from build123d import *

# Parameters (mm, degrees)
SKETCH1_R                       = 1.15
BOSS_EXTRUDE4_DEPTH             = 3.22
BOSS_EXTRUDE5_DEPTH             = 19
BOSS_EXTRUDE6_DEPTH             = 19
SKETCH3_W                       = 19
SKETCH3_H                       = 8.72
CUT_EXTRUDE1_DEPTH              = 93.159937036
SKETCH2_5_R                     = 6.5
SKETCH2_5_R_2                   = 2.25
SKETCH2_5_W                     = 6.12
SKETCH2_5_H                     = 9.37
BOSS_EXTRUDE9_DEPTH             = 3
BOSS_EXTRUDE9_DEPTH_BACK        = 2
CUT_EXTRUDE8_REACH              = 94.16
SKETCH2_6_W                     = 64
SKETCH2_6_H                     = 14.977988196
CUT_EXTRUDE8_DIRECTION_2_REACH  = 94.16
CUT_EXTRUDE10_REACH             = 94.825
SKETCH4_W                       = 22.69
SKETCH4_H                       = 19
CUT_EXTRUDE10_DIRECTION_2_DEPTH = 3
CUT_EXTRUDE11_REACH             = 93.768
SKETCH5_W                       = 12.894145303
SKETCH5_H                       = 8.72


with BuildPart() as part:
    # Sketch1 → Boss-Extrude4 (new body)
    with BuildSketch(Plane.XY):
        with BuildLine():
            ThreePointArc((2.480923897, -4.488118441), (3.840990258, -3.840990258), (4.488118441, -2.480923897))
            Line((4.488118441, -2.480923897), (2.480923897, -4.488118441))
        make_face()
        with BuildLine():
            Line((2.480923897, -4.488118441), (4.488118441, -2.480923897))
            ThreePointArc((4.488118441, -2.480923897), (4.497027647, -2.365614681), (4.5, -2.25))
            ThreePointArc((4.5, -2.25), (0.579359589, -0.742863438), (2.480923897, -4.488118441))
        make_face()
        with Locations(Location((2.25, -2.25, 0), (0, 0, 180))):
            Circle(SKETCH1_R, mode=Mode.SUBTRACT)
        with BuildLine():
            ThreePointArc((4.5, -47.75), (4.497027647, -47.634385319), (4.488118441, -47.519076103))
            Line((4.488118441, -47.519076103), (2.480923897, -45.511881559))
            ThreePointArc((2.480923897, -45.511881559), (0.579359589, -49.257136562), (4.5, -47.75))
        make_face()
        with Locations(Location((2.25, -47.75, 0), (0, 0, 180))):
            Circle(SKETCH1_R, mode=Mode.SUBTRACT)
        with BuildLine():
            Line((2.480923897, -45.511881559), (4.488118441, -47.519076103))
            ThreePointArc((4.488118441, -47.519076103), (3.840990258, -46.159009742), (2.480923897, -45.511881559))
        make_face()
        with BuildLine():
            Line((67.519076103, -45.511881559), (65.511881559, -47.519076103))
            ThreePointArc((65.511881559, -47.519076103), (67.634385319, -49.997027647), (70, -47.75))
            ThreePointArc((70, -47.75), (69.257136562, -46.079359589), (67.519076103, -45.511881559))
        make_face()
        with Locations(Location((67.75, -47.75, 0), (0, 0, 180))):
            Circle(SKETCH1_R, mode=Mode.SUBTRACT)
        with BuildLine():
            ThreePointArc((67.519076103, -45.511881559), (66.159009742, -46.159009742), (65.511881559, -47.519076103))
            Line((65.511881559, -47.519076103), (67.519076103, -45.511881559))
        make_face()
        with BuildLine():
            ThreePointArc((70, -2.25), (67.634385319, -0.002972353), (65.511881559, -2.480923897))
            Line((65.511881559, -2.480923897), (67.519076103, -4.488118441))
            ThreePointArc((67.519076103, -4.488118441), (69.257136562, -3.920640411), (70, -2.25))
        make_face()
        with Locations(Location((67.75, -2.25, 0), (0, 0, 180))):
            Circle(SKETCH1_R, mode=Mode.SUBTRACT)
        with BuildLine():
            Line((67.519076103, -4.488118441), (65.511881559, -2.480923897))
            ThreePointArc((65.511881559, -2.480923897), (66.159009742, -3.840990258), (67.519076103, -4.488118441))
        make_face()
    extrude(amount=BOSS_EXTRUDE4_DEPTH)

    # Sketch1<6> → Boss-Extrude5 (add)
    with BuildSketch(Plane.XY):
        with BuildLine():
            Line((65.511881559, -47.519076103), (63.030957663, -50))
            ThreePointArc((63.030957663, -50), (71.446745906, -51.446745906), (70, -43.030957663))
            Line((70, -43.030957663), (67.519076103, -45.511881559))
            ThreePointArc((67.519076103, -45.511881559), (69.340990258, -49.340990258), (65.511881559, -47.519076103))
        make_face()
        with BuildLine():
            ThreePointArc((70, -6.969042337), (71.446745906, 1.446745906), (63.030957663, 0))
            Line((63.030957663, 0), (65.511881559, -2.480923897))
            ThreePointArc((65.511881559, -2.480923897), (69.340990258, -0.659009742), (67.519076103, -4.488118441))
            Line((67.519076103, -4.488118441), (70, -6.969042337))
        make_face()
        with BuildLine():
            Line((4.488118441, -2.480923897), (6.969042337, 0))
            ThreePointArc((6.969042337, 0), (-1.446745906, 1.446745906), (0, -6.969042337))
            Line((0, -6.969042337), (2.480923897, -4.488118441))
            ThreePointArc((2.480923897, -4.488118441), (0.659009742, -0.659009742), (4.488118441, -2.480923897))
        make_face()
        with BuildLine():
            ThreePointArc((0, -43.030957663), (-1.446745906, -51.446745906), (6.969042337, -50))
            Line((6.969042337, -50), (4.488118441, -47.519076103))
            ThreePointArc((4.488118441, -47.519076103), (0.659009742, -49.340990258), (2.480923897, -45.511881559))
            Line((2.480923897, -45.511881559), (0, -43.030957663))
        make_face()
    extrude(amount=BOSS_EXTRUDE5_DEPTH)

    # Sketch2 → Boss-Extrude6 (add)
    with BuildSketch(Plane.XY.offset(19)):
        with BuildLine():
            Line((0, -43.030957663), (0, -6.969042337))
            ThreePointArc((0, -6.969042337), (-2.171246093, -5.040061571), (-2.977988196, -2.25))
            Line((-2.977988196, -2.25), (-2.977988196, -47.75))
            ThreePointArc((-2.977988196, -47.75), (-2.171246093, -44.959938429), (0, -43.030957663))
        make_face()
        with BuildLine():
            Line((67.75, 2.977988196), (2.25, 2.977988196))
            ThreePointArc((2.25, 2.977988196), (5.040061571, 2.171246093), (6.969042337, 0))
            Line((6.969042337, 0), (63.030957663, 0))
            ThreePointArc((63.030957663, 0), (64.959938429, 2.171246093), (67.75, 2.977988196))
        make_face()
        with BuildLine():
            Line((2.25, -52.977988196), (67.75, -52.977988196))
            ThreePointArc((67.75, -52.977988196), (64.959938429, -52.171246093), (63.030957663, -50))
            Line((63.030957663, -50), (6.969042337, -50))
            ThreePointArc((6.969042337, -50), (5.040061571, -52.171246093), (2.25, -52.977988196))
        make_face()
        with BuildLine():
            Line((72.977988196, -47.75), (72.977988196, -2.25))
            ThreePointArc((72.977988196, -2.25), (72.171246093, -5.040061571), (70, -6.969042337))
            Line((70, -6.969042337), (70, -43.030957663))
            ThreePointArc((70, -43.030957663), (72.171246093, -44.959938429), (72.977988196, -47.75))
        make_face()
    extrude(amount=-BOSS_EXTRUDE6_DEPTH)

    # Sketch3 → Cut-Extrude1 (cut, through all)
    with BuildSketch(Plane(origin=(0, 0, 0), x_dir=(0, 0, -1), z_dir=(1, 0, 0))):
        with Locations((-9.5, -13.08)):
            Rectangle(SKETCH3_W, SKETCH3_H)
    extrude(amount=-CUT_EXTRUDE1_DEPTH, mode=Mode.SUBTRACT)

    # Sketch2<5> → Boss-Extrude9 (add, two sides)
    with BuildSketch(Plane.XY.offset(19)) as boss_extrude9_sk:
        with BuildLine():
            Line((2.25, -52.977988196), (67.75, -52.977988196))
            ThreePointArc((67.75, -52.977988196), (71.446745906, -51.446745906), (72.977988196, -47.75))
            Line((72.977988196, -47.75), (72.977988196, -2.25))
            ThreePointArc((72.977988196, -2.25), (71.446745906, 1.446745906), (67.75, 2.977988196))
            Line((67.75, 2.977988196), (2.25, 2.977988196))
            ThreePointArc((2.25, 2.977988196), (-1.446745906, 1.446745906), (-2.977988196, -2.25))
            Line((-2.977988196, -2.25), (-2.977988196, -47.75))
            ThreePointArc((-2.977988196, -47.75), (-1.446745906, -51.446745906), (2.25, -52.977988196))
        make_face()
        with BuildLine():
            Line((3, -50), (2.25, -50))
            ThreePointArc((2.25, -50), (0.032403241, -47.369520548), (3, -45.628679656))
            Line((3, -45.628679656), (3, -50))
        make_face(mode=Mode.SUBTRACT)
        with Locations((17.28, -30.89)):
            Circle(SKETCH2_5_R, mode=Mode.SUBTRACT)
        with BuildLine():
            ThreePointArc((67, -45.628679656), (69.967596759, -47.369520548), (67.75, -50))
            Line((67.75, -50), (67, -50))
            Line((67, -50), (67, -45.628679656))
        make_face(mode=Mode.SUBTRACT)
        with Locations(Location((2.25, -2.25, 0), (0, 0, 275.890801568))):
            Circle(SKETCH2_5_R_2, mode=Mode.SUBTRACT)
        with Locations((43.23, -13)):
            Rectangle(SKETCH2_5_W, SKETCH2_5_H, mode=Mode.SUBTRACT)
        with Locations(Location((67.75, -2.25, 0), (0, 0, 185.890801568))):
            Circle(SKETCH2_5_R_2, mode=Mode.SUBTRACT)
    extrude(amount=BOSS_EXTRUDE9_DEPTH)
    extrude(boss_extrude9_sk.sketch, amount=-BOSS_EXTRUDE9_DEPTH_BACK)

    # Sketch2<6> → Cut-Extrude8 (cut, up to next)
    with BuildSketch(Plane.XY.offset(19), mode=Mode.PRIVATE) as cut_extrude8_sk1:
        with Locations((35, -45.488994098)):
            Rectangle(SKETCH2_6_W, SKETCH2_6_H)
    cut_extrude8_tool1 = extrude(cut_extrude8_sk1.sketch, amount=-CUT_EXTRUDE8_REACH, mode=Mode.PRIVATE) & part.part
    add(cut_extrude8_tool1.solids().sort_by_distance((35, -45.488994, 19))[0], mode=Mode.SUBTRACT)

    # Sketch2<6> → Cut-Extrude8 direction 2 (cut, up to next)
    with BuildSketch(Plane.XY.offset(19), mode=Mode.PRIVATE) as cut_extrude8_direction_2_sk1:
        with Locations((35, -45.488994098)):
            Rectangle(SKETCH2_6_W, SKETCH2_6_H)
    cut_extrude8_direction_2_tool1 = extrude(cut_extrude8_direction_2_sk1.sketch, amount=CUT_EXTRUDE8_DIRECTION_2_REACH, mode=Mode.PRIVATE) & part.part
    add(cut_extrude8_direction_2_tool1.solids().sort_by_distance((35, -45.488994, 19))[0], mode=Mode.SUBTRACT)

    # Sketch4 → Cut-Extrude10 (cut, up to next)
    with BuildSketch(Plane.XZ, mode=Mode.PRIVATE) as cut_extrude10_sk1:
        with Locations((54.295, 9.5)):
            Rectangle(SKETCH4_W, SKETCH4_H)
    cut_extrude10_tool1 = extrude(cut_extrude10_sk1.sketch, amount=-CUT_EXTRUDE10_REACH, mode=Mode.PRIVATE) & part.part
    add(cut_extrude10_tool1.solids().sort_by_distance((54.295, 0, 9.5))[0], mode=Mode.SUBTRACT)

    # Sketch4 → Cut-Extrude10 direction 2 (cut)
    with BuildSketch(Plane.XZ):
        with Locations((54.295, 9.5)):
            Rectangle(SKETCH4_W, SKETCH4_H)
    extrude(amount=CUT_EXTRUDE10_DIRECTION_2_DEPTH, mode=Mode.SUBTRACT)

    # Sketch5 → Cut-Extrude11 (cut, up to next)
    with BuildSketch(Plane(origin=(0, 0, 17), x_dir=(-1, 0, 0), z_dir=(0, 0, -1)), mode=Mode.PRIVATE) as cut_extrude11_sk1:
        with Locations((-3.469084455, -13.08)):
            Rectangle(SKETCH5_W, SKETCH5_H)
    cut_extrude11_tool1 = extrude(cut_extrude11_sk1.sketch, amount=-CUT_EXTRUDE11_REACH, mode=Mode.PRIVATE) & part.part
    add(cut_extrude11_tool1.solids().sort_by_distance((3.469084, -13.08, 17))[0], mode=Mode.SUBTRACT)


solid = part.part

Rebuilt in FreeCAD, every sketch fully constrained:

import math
import FreeCAD as App
import Part
import Sketcher
from FreeCAD import Vector
Q = App.Units.Quantity

doc = App.newDocument("Part")
params = doc.addObject("Spreadsheet::Sheet", "Params")
for row, (alias, value) in enumerate([
    ("sketch1_diameter", "2.3 mm"),
    ("sketch1_radius", "2.25 mm"),
    ("pad1_length", "3.22 mm"),
    ("sketch2_radius", "2.25 mm"),
    ("pad2_length", "19 mm"),
    ("sketch3_width", "65.5 mm"),
    ("sketch3_height", "45.5 mm"),
    ("pad3_length", "19 mm"),
    ("sketch4_height", "19 mm"),
    ("sketch4_width", "8.72 mm"),
    ("sketch5_diameter", "13 mm"),
    ("sketch5_diameter2", "4.5 mm"),
    ("sketch5_width", "65.5 mm"),
    ("sketch5_height", "45.5 mm"),
    ("sketch5_width2", "6.12 mm"),
    ("pad4_length", "3 mm"),
    ("pad4_length2", "2 mm"),
    ("sketch6_width", "64 mm"),
    ("pocket2_length", "19 mm"),
    ("sketch7_width", "64 mm"),
    ("sketch8_height", "19 mm"),
    ("sketch8_width", "22.69 mm"),
    ("sketch9_height", "19 mm"),
    ("sketch9_width", "22.69 mm"),
    ("pocket5_length", "3 mm"),
    ("sketch10_height", "8.72 mm"),
], start=1):
    params.set(f"A{row}", alias)
    params.set(f"B{row}", "=" + value)
    params.setAlias(f"B{row}", alias)

body = doc.addObject("PartDesign::Body", "Body")
body.AllowCompound = True

# Sketch on XY plane
sketch1 = body.newObject("Sketcher::SketchObject", "Sketch")
sketch1.AttachmentSupport = (doc.getObject("XY_Plane"), [""])
sketch1.MapMode = "FlatFace"
sketch1.addGeometry(Part.ArcOfCircle(Part.Circle(Vector(2.25, -2.25, 0), Vector(0, 0, 1), 2.25), math.radians(-84.109198), math.radians(-5.890802)), False)
sketch1.addGeometry(Part.ArcOfCircle(Part.Circle(Vector(2.25, -2.25, 0), Vector(0, 0, 1), 2.25), math.radians(-5.890801), math.radians(0)), False)
sketch1.addGeometry(Part.ArcOfCircle(Part.Circle(Vector(2.25, -2.25, 0), Vector(0, 0, 1), 2.25), math.radians(0), math.radians(275.890802)), False)
sketch1.addGeometry(Part.Circle(Vector(2.25, -2.25, 0), Vector(0, 0, 1), 1.15), False)
sketch1.addGeometry(Part.ArcOfCircle(Part.Circle(Vector(2.25, -47.75, 0), Vector(0, 0, 1), 2.25), math.radians(0), math.radians(5.890801)), False)
sketch1.addGeometry(Part.ArcOfCircle(Part.Circle(Vector(2.25, -47.75, 0), Vector(0, 0, 1), 2.25), math.radians(5.890802), math.radians(84.109198)), False)
sketch1.addGeometry(Part.ArcOfCircle(Part.Circle(Vector(2.25, -47.75, 0), Vector(0, 0, 1), 2.25), math.radians(84.109198), math.radians(360)), False)
sketch1.addGeometry(Part.Circle(Vector(2.25, -47.75, 0), Vector(0, 0, 1), 1.15), False)
sketch1.addGeometry(Part.ArcOfCircle(Part.Circle(Vector(67.75, -47.75, 0), Vector(0, 0, 1), 2.25), math.radians(0), math.radians(95.890802)), False)
sketch1.addGeometry(Part.ArcOfCircle(Part.Circle(Vector(67.75, -47.75, 0), Vector(0, 0, 1), 2.25), math.radians(95.890802), math.radians(174.109198)), False)
sketch1.addGeometry(Part.ArcOfCircle(Part.Circle(Vector(67.75, -47.75, 0), Vector(0, 0, 1), 2.25), math.radians(174.109198), math.radians(360)), False)
sketch1.addGeometry(Part.Circle(Vector(67.75, -47.75, 0), Vector(0, 0, 1), 1.15), False)
sketch1.addGeometry(Part.ArcOfCircle(Part.Circle(Vector(67.75, -2.25, 0), Vector(0, 0, 1), 2.25), math.radians(0), math.radians(185.890802)), False)
sketch1.addGeometry(Part.ArcOfCircle(Part.Circle(Vector(67.75, -2.25, 0), Vector(0, 0, 1), 2.25), math.radians(-174.109198), math.radians(-95.890802)), False)
sketch1.addGeometry(Part.ArcOfCircle(Part.Circle(Vector(67.75, -2.25, 0), Vector(0, 0, 1), 2.25), math.radians(-95.890802), math.radians(0)), False)
sketch1.addGeometry(Part.Circle(Vector(67.75, -2.25, 0), Vector(0, 0, 1), 1.15), False)
sketch1.addConstraint(Sketcher.Constraint("Tangent", 0, 2, 1, 1))
sketch1.addConstraint(Sketcher.Constraint("Tangent", 1, 2, 2, 1))
sketch1.addConstraint(Sketcher.Constraint("Tangent", 2, 2, 0, 1))
sketch1.addConstraint(Sketcher.Constraint("Tangent", 4, 2, 5, 1))
sketch1.addConstraint(Sketcher.Constraint("Tangent", 5, 2, 6, 1))
sketch1.addConstraint(Sketcher.Constraint("Tangent", 6, 2, 4, 1))
sketch1.addConstraint(Sketcher.Constraint("Tangent", 8, 2, 9, 1))
sketch1.addConstraint(Sketcher.Constraint("Tangent", 9, 2, 10, 1))
sketch1.addConstraint(Sketcher.Constraint("Tangent", 10, 2, 8, 1))
sketch1.addConstraint(Sketcher.Constraint("Tangent", 12, 2, 13, 1))
sketch1.addConstraint(Sketcher.Constraint("Tangent", 13, 2, 14, 1))
sketch1.addConstraint(Sketcher.Constraint("Tangent", 14, 2, 12, 1))
sketch1.addConstraint(Sketcher.Constraint("Coincident", 3, 3, 0, 3))
sketch1.addConstraint(Sketcher.Constraint("Coincident", 7, 3, 4, 3))
sketch1.addConstraint(Sketcher.Constraint("Coincident", 11, 3, 8, 3))
sketch1.addConstraint(Sketcher.Constraint("Coincident", 15, 3, 12, 3))
sketch1.addConstraint(Sketcher.Constraint("Equal", 2, 4))
sketch1.addConstraint(Sketcher.Constraint("Equal", 3, 7))
sketch1.addConstraint(Sketcher.Constraint("Equal", 6, 8))
sketch1.addConstraint(Sketcher.Constraint("Equal", 7, 11))
sketch1.addConstraint(Sketcher.Constraint("Equal", 10, 12))
sketch1.addConstraint(Sketcher.Constraint("Equal", 11, 15))
sketch1.addConstraint(Sketcher.Constraint("Horizontal", 7, 3, 8, 3))
sketch1.addConstraint(Sketcher.Constraint("Horizontal", 3, 3, 12, 3))
sketch1.addConstraint(Sketcher.Constraint("Horizontal", 15, 3, 1, 2))
sketch1.addConstraint(Sketcher.Constraint("Horizontal", 11, 3, 6, 2))
sketch1.addConstraint(Sketcher.Constraint("Horizontal", 5, 2, 8, 2))
sketch1.addConstraint(Sketcher.Constraint("Horizontal", 4, 2, 9, 2))
sketch1.addConstraint(Sketcher.Constraint("Horizontal", 6, 2, 10, 2))
sketch1.addConstraint(Sketcher.Constraint("Horizontal", 0, 2, 12, 2))
sketch1.addConstraint(Sketcher.Constraint("Horizontal", 2, 2, 13, 2))
sketch1.addConstraint(Sketcher.Constraint("Horizontal", 1, 2, 14, 2))
sketch1.addConstraint(Sketcher.Constraint("Vertical", 3, 3, 4, 3))
sketch1.addConstraint(Sketcher.Constraint("Vertical", 11, 3, 12, 3))
sketch1.addConstraint(Sketcher.Constraint("Vertical", 0, 2, 4, 2))
sketch1.addConstraint(Sketcher.Constraint("Vertical", 2, 2, 5, 2))
sketch1.addConstraint(Sketcher.Constraint("Diameter", 3, Q("2.3 mm")))
sketch1.addConstraint(Sketcher.Constraint("Radius", 0, Q("2.25 mm")))
sketch1.addConstraint(Sketcher.Constraint("DistanceX", -1, 1, 10, 2, Q("70 mm")))
sketch1.addConstraint(Sketcher.Constraint("DistanceX", -1, 1, 1, 2, Q("4.5 mm")))
sketch1.addConstraint(Sketcher.Constraint("DistanceY", 4, 3, 1, 3, Q("45.5 mm")))
sketch1.addConstraint(Sketcher.Constraint("DistanceY", 0, 3, -1, 1, Q("2.25 mm")))
sketch1.addConstraint(Sketcher.Constraint("DistanceX", -1, 1, 0, 2, Q("4.488118 mm")))
sketch1.addConstraint(Sketcher.Constraint("DistanceY", 2, 2, -1, 1, Q("4.488118 mm")))
sketch1.setExpression("Constraints[36]", "Params.sketch1_diameter")
sketch1.setExpression("Constraints[37]", "Params.sketch1_radius")
pad1 = body.newObject("PartDesign::Pad", "Pad")
pad1.Profile = sketch1
pad1.setExpression("Length", "Params.pad1_length")

# Sketch on XY plane
sketch2 = body.newObject("Sketcher::SketchObject", "Sketch001")
sketch2.AttachmentSupport = (doc.getObject("XY_Plane"), [""])
sketch2.MapMode = "FlatFace"
sketch2.addGeometry(Part.LineSegment(Vector(65.511882, -47.519076, 0), Vector(63.030958, -50, 0)), False)
sketch2.addGeometry(Part.ArcOfCircle(Part.Circle(Vector(67.75, -47.75, 0), Vector(0, 0, 1), 5.227988), math.radians(-154.508583), math.radians(64.508583)), False)
sketch2.addGeometry(Part.LineSegment(Vector(70, -43.030958, 0), Vector(67.519076, -45.511882, 0)), False)
sketch2.addGeometry(Part.ArcOfCircle(Part.Circle(Vector(67.75, -47.75, 0), Vector(0, 0, 1), 2.25), math.radians(174.109198), math.radians(455.890802)), False)
sketch2.addGeometry(Part.ArcOfCircle(Part.Circle(Vector(67.75, -2.25, 0), Vector(0, 0, 1), 5.227988), math.radians(-64.508583), math.radians(154.508583)), False)
sketch2.addGeometry(Part.LineSegment(Vector(63.030958, 0, 0), Vector(65.511882, -2.480924, 0)), False)
sketch2.addGeometry(Part.ArcOfCircle(Part.Circle(Vector(67.75, -2.25, 0), Vector(0, 0, 1), 2.25), math.radians(-95.890802), math.radians(185.890802)), False)
sketch2.addGeometry(Part.LineSegment(Vector(67.519076, -4.488118, 0), Vector(70, -6.969042, 0)), False)
sketch2.addGeometry(Part.LineSegment(Vector(4.488118, -2.480924, 0), Vector(6.969042, 0, 0)), False)
sketch2.addGeometry(Part.ArcOfCircle(Part.Circle(Vector(2.25, -2.25, 0), Vector(0, 0, 1), 5.227988), math.radians(25.491417), math.radians(244.508583)), False)
sketch2.addGeometry(Part.LineSegment(Vector(0, -6.969042, 0), Vector(2.480924, -4.488118, 0)), False)
sketch2.addGeometry(Part.ArcOfCircle(Part.Circle(Vector(2.25, -2.25, 0), Vector(0, 0, 1), 2.25), math.radians(-5.890802), math.radians(275.890802)), False)
sketch2.addGeometry(Part.ArcOfCircle(Part.Circle(Vector(2.25, -47.75, 0), Vector(0, 0, 1), 5.227988), math.radians(115.491417), math.radians(334.508583)), False)
sketch2.addGeometry(Part.LineSegment(Vector(6.969042, -50, 0), Vector(4.488118, -47.519076, 0)), False)
sketch2.addGeometry(Part.ArcOfCircle(Part.Circle(Vector(2.25, -47.75, 0), Vector(0, 0, 1), 2.25), math.radians(84.109198), math.radians(365.890802)), False)
sketch2.addGeometry(Part.LineSegment(Vector(2.480924, -45.511882, 0), Vector(0, -43.030958, 0)), False)
sketch2.addConstraint(Sketcher.Constraint("Coincident", 0, 2, 1, 1))
sketch2.addConstraint(Sketcher.Constraint("Coincident", 1, 2, 2, 1))
sketch2.addConstraint(Sketcher.Constraint("Coincident", 2, 2, 3, 2))
sketch2.addConstraint(Sketcher.Constraint("Coincident", 3, 1, 0, 1))
sketch2.addConstraint(Sketcher.Constraint("Coincident", 4, 2, 5, 1))
sketch2.addConstraint(Sketcher.Constraint("Coincident", 5, 2, 6, 2))
sketch2.addConstraint(Sketcher.Constraint("Coincident", 6, 1, 7, 1))
sketch2.addConstraint(Sketcher.Constraint("Coincident", 7, 2, 4, 1))
sketch2.addConstraint(Sketcher.Constraint("Coincident", 8, 2, 9, 1))
sketch2.addConstraint(Sketcher.Constraint("Coincident", 9, 2, 10, 1))
sketch2.addConstraint(Sketcher.Constraint("Coincident", 10, 2, 11, 2))
sketch2.addConstraint(Sketcher.Constraint("Coincident", 11, 1, 8, 1))
sketch2.addConstraint(Sketcher.Constraint("Coincident", 12, 2, 13, 1))
sketch2.addConstraint(Sketcher.Constraint("Coincident", 13, 2, 14, 2))
sketch2.addConstraint(Sketcher.Constraint("Coincident", 14, 1, 15, 1))
sketch2.addConstraint(Sketcher.Constraint("Coincident", 15, 2, 12, 1))
sketch2.addConstraint(Sketcher.Constraint("Coincident", 3, 3, 1, 3))
sketch2.addConstraint(Sketcher.Constraint("Coincident", 6, 3, 4, 3))
sketch2.addConstraint(Sketcher.Constraint("Coincident", 11, 3, 9, 3))
sketch2.addConstraint(Sketcher.Constraint("Coincident", 14, 3, 12, 3))
sketch2.addConstraint(Sketcher.Constraint("Equal", 1, 4))
sketch2.addConstraint(Sketcher.Constraint("Equal", 3, 6))
sketch2.addConstraint(Sketcher.Constraint("Equal", 4, 9))
sketch2.addConstraint(Sketcher.Constraint("Equal", 6, 11))
sketch2.addConstraint(Sketcher.Constraint("Equal", 9, 12))
sketch2.addConstraint(Sketcher.Constraint("Equal", 11, 14))
sketch2.addConstraint(Sketcher.Constraint("PointOnObject", 4, 2, -1))
sketch2.addConstraint(Sketcher.Constraint("PointOnObject", 8, 2, -1))
sketch2.addConstraint(Sketcher.Constraint("PointOnObject", 9, 2, -2))
sketch2.addConstraint(Sketcher.Constraint("PointOnObject", 15, 2, -2))
sketch2.addConstraint(Sketcher.Constraint("Parallel", 0, 2))
sketch2.addConstraint(Sketcher.Constraint("Perpendicular", 2, 5))
sketch2.addConstraint(Sketcher.Constraint("Parallel", 5, 7))
sketch2.addConstraint(Sketcher.Constraint("Perpendicular", 7, 8))
sketch2.addConstraint(Sketcher.Constraint("Parallel", 8, 10))
sketch2.addConstraint(Sketcher.Constraint("Perpendicular", 10, 13))
sketch2.addConstraint(Sketcher.Constraint("Parallel", 13, 15))
sketch2.addConstraint(Sketcher.Constraint("Horizontal", 6, 3, 9, 3))
sketch2.addConstraint(Sketcher.Constraint("Horizontal", 3, 3, 12, 3))
sketch2.addConstraint(Sketcher.Constraint("Horizontal", 7, 2, 9, 2))
sketch2.addConstraint(Sketcher.Constraint("Horizontal", 6, 1, 10, 2))
sketch2.addConstraint(Sketcher.Constraint("Horizontal", 0, 2, 12, 2))
sketch2.addConstraint(Sketcher.Constraint("Horizontal", 2, 2, 14, 1))
sketch2.addConstraint(Sketcher.Constraint("Vertical", 3, 3, 4, 3))
sketch2.addConstraint(Sketcher.Constraint("Vertical", 11, 3, 12, 3))
sketch2.addConstraint(Sketcher.Constraint("Vertical", 0, 2, 4, 2))
sketch2.addConstraint(Sketcher.Constraint("Equal", 0, 2))
sketch2.addConstraint(Sketcher.Constraint("Radius", 3, Q("2.25 mm")))
sketch2.addConstraint(Sketcher.Constraint("DistanceY", 0, 2, -1, 1, Q("50 mm")))
sketch2.addConstraint(Sketcher.Constraint("DistanceX", -1, 1, 1, 2, Q("70 mm")))
sketch2.addConstraint(Sketcher.Constraint("DistanceY", 1, 3, 4, 3, Q("45.5 mm")))
sketch2.addConstraint(Sketcher.Constraint("Radius", 1, Q("5.227988 mm")))
sketch2.setExpression("Constraints[47]", "Params.sketch2_radius")
pad2 = body.newObject("PartDesign::Pad", "Pad001")
pad2.Profile = sketch2
pad2.setExpression("Length", "Params.pad2_length")

# Sketch on XY plane
sketch3 = body.newObject("Sketcher::SketchObject", "Sketch002")
sketch3.AttachmentSupport = (doc.getObject("XY_Plane"), [""])
sketch3.MapMode = "FlatFace"
sketch3.AttachmentOffset = App.Placement(Vector(0, 0, 19), App.Rotation())
sketch3.addGeometry(Part.LineSegment(Vector(0, -43.030958, 0), Vector(0, -6.969042, 0)), False)
sketch3.addGeometry(Part.ArcOfCircle(Part.Circle(Vector(2.25, -2.25, 0), Vector(0, 0, 1), 5.227988), math.radians(180), math.radians(244.508583)), False)
sketch3.addGeometry(Part.LineSegment(Vector(-2.977988, -2.25, 0), Vector(-2.977988, -47.75, 0)), False)
sketch3.addGeometry(Part.ArcOfCircle(Part.Circle(Vector(2.25, -47.75, 0), Vector(0, 0, 1), 5.227988), math.radians(115.491417), math.radians(180)), False)
sketch3.addGeometry(Part.LineSegment(Vector(67.75, 2.977988, 0), Vector(2.25, 2.977988, 0)), False)
sketch3.addGeometry(Part.ArcOfCircle(Part.Circle(Vector(2.25, -2.25, 0), Vector(0, 0, 1), 5.227988), math.radians(25.491417), math.radians(90)), False)
sketch3.addGeometry(Part.LineSegment(Vector(6.969042, 0, 0), Vector(63.030958, 0, 0)), False)
sketch3.addGeometry(Part.ArcOfCircle(Part.Circle(Vector(67.75, -2.25, 0), Vector(0, 0, 1), 5.227988), math.radians(90), math.radians(154.508583)), False)
sketch3.addGeometry(Part.LineSegment(Vector(2.25, -52.977988, 0), Vector(67.75, -52.977988, 0)), False)
sketch3.addGeometry(Part.ArcOfCircle(Part.Circle(Vector(67.75, -47.75, 0), Vector(0, 0, 1), 5.227988), math.radians(-154.508583), math.radians(-90)), False)
sketch3.addGeometry(Part.LineSegment(Vector(63.030958, -50, 0), Vector(6.969042, -50, 0)), False)
sketch3.addGeometry(Part.ArcOfCircle(Part.Circle(Vector(2.25, -47.75, 0), Vector(0, 0, 1), 5.227988), math.radians(-90), math.radians(-25.491417)), False)
sketch3.addGeometry(Part.LineSegment(Vector(72.977988, -47.75, 0), Vector(72.977988, -2.25, 0)), False)
sketch3.addGeometry(Part.ArcOfCircle(Part.Circle(Vector(67.75, -2.25, 0), Vector(0, 0, 1), 5.227988), math.radians(-64.508583), math.radians(0)), False)
sketch3.addGeometry(Part.LineSegment(Vector(70, -6.969042, 0), Vector(70, -43.030958, 0)), False)
sketch3.addGeometry(Part.ArcOfCircle(Part.Circle(Vector(67.75, -47.75, 0), Vector(0, 0, 1), 5.227988), math.radians(0), math.radians(64.508583)), False)
sketch3.addConstraint(Sketcher.Constraint("Coincident", 0, 2, 1, 2))
sketch3.addConstraint(Sketcher.Constraint("Tangent", 1, 1, 2, 1))
sketch3.addConstraint(Sketcher.Constraint("Tangent", 2, 2, 3, 2))
sketch3.addConstraint(Sketcher.Constraint("Coincident", 3, 1, 0, 1))
sketch3.addConstraint(Sketcher.Constraint("Tangent", 4, 2, 5, 2))
sketch3.addConstraint(Sketcher.Constraint("Coincident", 5, 1, 6, 1))
sketch3.addConstraint(Sketcher.Constraint("Coincident", 6, 2, 7, 2))
sketch3.addConstraint(Sketcher.Constraint("Tangent", 7, 1, 4, 1))
sketch3.addConstraint(Sketcher.Constraint("Tangent", 8, 2, 9, 2))
sketch3.addConstraint(Sketcher.Constraint("Coincident", 9, 1, 10, 1))
sketch3.addConstraint(Sketcher.Constraint("Coincident", 10, 2, 11, 2))
sketch3.addConstraint(Sketcher.Constraint("Tangent", 11, 1, 8, 1))
sketch3.addConstraint(Sketcher.Constraint("Tangent", 12, 2, 13, 2))
sketch3.addConstraint(Sketcher.Constraint("Coincident", 13, 1, 14, 1))
sketch3.addConstraint(Sketcher.Constraint("Coincident", 14, 2, 15, 2))
sketch3.addConstraint(Sketcher.Constraint("Tangent", 15, 1, 12, 1))
sketch3.addConstraint(Sketcher.Constraint("Vertical", 0))
sketch3.addConstraint(Sketcher.Constraint("Vertical", 2))
sketch3.addConstraint(Sketcher.Constraint("Horizontal", 4))
sketch3.addConstraint(Sketcher.Constraint("Horizontal", 6))
sketch3.addConstraint(Sketcher.Constraint("Horizontal", 8))
sketch3.addConstraint(Sketcher.Constraint("Horizontal", 10))
sketch3.addConstraint(Sketcher.Constraint("Vertical", 12))
sketch3.addConstraint(Sketcher.Constraint("Vertical", 14))
sketch3.addConstraint(Sketcher.Constraint("Coincident", 5, 3, 1, 3))
sketch3.addConstraint(Sketcher.Constraint("Coincident", 11, 3, 3, 3))
sketch3.addConstraint(Sketcher.Constraint("Coincident", 13, 3, 7, 3))
sketch3.addConstraint(Sketcher.Constraint("Coincident", 15, 3, 9, 3))
sketch3.addConstraint(Sketcher.Constraint("Equal", 1, 3))
sketch3.addConstraint(Sketcher.Constraint("Equal", 3, 5))
sketch3.addConstraint(Sketcher.Constraint("Equal", 5, 7))
sketch3.addConstraint(Sketcher.Constraint("Equal", 7, 9))
sketch3.addConstraint(Sketcher.Constraint("Equal", 9, 11))
sketch3.addConstraint(Sketcher.Constraint("Equal", 11, 13))
sketch3.addConstraint(Sketcher.Constraint("Equal", 13, 15))
sketch3.addConstraint(Sketcher.Constraint("PointOnObject", 0, 2, -2))
sketch3.addConstraint(Sketcher.Constraint("PointOnObject", 5, 1, -1))
sketch3.addConstraint(Sketcher.Constraint("Horizontal", 0, 2, 13, 1))
sketch3.addConstraint(Sketcher.Constraint("Vertical", 6, 2, 9, 1))
sketch3.addConstraint(Sketcher.Constraint("DistanceX", 4, 2, 4, 1, Q("65.5 mm")))
sketch3.addConstraint(Sketcher.Constraint("DistanceY", 2, 2, 2, 1, Q("45.5 mm")))
sketch3.addConstraint(Sketcher.Constraint("DistanceY", 9, 1, -1, 1, Q("50 mm")))
sketch3.addConstraint(Sketcher.Constraint("DistanceX", -1, 1, 13, 1, Q("70 mm")))
sketch3.addConstraint(Sketcher.Constraint("Radius", 1, Q("5.227988 mm")))
sketch3.setExpression("Constraints[39]", "Params.sketch3_width")
sketch3.setExpression("Constraints[40]", "Params.sketch3_height")
pad3 = body.newObject("PartDesign::Pad", "Pad002")
pad3.Profile = sketch3
pad3.setExpression("Length", "Params.pad3_length")
pad3.Reversed = True

# Sketch on YZ plane
sketch4 = body.newObject("Sketcher::SketchObject", "Sketch003")
sketch4.AttachmentSupport = (doc.getObject("YZ_Plane"), [""])
sketch4.MapMode = "FlatFace"
sketch4.addGeometry(Part.LineSegment(Vector(-8.72, 19, 0), Vector(-17.44, 19, 0)), False)
sketch4.addGeometry(Part.LineSegment(Vector(-17.44, 19, 0), Vector(-17.44, 0, 0)), False)
sketch4.addGeometry(Part.LineSegment(Vector(-17.44, 0, 0), Vector(-8.72, 0, 0)), False)
sketch4.addGeometry(Part.LineSegment(Vector(-8.72, 0, 0), Vector(-8.72, 19, 0)), False)
sketch4.addConstraint(Sketcher.Constraint("Coincident", 0, 2, 1, 1))
sketch4.addConstraint(Sketcher.Constraint("Coincident", 1, 2, 2, 1))
sketch4.addConstraint(Sketcher.Constraint("Coincident", 2, 2, 3, 1))
sketch4.addConstraint(Sketcher.Constraint("Coincident", 3, 2, 0, 1))
sketch4.addConstraint(Sketcher.Constraint("Horizontal", 0))
sketch4.addConstraint(Sketcher.Constraint("Vertical", 1))
sketch4.addConstraint(Sketcher.Constraint("Horizontal", 2))
sketch4.addConstraint(Sketcher.Constraint("Vertical", 3))
sketch4.addConstraint(Sketcher.Constraint("PointOnObject", 1, 2, -1))
sketch4.addConstraint(Sketcher.Constraint("DistanceY", 1, 2, 1, 1, Q("19 mm")))
sketch4.addConstraint(Sketcher.Constraint("DistanceX", 0, 2, 0, 1, Q("8.72 mm")))
sketch4.addConstraint(Sketcher.Constraint("DistanceX", 0, 2, -1, 1, Q("17.44 mm")))
sketch4.setExpression("Constraints[9]", "Params.sketch4_height")
sketch4.setExpression("Constraints[10]", "Params.sketch4_width")
pocket1 = body.newObject("PartDesign::Pocket", "Pocket")
pocket1.Profile = sketch4
pocket1.Type = "ThroughAll"

# Sketch on XY plane
sketch5 = body.newObject("Sketcher::SketchObject", "Sketch004")
sketch5.AttachmentSupport = (doc.getObject("XY_Plane"), [""])
sketch5.MapMode = "FlatFace"
sketch5.AttachmentOffset = App.Placement(Vector(0, 0, 19), App.Rotation())
sketch5.addGeometry(Part.LineSegment(Vector(2.25, -52.977988, 0), Vector(67.75, -52.977988, 0)), False)
sketch5.addGeometry(Part.ArcOfCircle(Part.Circle(Vector(67.75, -47.75, 0), Vector(0, 0, 1), 5.227988), math.radians(-90), math.radians(0)), False)
sketch5.addGeometry(Part.LineSegment(Vector(72.977988, -47.75, 0), Vector(72.977988, -2.25, 0)), False)
sketch5.addGeometry(Part.ArcOfCircle(Part.Circle(Vector(67.75, -2.25, 0), Vector(0, 0, 1), 5.227988), math.radians(0), math.radians(90)), False)
sketch5.addGeometry(Part.LineSegment(Vector(67.75, 2.977988, 0), Vector(2.25, 2.977988, 0)), False)
sketch5.addGeometry(Part.ArcOfCircle(Part.Circle(Vector(2.25, -2.25, 0), Vector(0, 0, 1), 5.227988), math.radians(90), math.radians(180)), False)
sketch5.addGeometry(Part.LineSegment(Vector(-2.977988, -2.25, 0), Vector(-2.977988, -47.75, 0)), False)
sketch5.addGeometry(Part.ArcOfCircle(Part.Circle(Vector(2.25, -47.75, 0), Vector(0, 0, 1), 5.227988), math.radians(180), math.radians(270)), False)
sketch5.addGeometry(Part.LineSegment(Vector(3, -45.62868, 0), Vector(3, -50, 0)), False)
sketch5.addGeometry(Part.LineSegment(Vector(3, -50, 0), Vector(2.25, -50, 0)), False)
sketch5.addGeometry(Part.ArcOfCircle(Part.Circle(Vector(2.25, -47.75, 0), Vector(0, 0, 1), 2.25), math.radians(70.528779), math.radians(270)), False)
sketch5.addGeometry(Part.Circle(Vector(17.28, -30.89, 0), Vector(0, 0, 1), 6.5), False)
sketch5.addGeometry(Part.LineSegment(Vector(67, -50, 0), Vector(67, -45.62868, 0)), False)
sketch5.addGeometry(Part.ArcOfCircle(Part.Circle(Vector(67.75, -47.75, 0), Vector(0, 0, 1), 2.25), math.radians(-90), math.radians(109.471221)), False)
sketch5.addGeometry(Part.LineSegment(Vector(67.75, -50, 0), Vector(67, -50, 0)), False)
sketch5.addGeometry(Part.Circle(Vector(2.25, -2.25, 0), Vector(0, 0, 1), 2.25), False)
sketch5.addGeometry(Part.LineSegment(Vector(46.29, -17.685, 0), Vector(40.17, -17.685, 0)), False)
sketch5.addGeometry(Part.LineSegment(Vector(40.17, -17.685, 0), Vector(40.17, -8.315, 0)), False)
sketch5.addGeometry(Part.LineSegment(Vector(40.17, -8.315, 0), Vector(46.29, -8.315, 0)), False)
sketch5.addGeometry(Part.LineSegment(Vector(46.29, -8.315, 0), Vector(46.29, -17.685, 0)), False)
sketch5.addGeometry(Part.Circle(Vector(67.75, -2.25, 0), Vector(0, 0, 1), 2.25), False)
sketch5.addConstraint(Sketcher.Constraint("Tangent", 0, 2, 1, 1))
sketch5.addConstraint(Sketcher.Constraint("Tangent", 1, 2, 2, 1))
sketch5.addConstraint(Sketcher.Constraint("Tangent", 2, 2, 3, 1))
sketch5.addConstraint(Sketcher.Constraint("Tangent", 3, 2, 4, 1))
sketch5.addConstraint(Sketcher.Constraint("Tangent", 4, 2, 5, 1))
sketch5.addConstraint(Sketcher.Constraint("Tangent", 5, 2, 6, 1))
sketch5.addConstraint(Sketcher.Constraint("Tangent", 6, 2, 7, 1))
sketch5.addConstraint(Sketcher.Constraint("Tangent", 7, 2, 0, 1))
sketch5.addConstraint(Sketcher.Constraint("Coincident", 8, 2, 9, 1))
sketch5.addConstraint(Sketcher.Constraint("Tangent", 9, 2, 10, 2))
sketch5.addConstraint(Sketcher.Constraint("Coincident", 10, 1, 8, 1))
sketch5.addConstraint(Sketcher.Constraint("Coincident", 12, 2, 13, 2))
sketch5.addConstraint(Sketcher.Constraint("Tangent", 13, 1, 14, 1))
sketch5.addConstraint(Sketcher.Constraint("Coincident", 14, 2, 12, 1))
sketch5.addConstraint(Sketcher.Constraint("Coincident", 16, 2, 17, 1))
sketch5.addConstraint(Sketcher.Constraint("Coincident", 17, 2, 18, 1))
sketch5.addConstraint(Sketcher.Constraint("Coincident", 18, 2, 19, 1))
sketch5.addConstraint(Sketcher.Constraint("Coincident", 19, 2, 16, 1))
sketch5.addConstraint(Sketcher.Constraint("Horizontal", 0))
sketch5.addConstraint(Sketcher.Constraint("Vertical", 2))
sketch5.addConstraint(Sketcher.Constraint("Horizontal", 4))
sketch5.addConstraint(Sketcher.Constraint("Vertical", 6))
sketch5.addConstraint(Sketcher.Constraint("Vertical", 8))
sketch5.addConstraint(Sketcher.Constraint("Horizontal", 9))
sketch5.addConstraint(Sketcher.Constraint("Vertical", 12))
sketch5.addConstraint(Sketcher.Constraint("Horizontal", 14))
sketch5.addConstraint(Sketcher.Constraint("Horizontal", 16))
sketch5.addConstraint(Sketcher.Constraint("Vertical", 17))
sketch5.addConstraint(Sketcher.Constraint("Horizontal", 18))
sketch5.addConstraint(Sketcher.Constraint("Vertical", 19))
sketch5.addConstraint(Sketcher.Constraint("Coincident", 10, 3, 7, 3))
sketch5.addConstraint(Sketcher.Constraint("Coincident", 13, 3, 1, 3))
sketch5.addConstraint(Sketcher.Constraint("Coincident", 15, 3, 5, 3))
sketch5.addConstraint(Sketcher.Constraint("Coincident", 20, 3, 3, 3))
sketch5.addConstraint(Sketcher.Constraint("Equal", 1, 3))
sketch5.addConstraint(Sketcher.Constraint("Equal", 3, 5))
sketch5.addConstraint(Sketcher.Constraint("Equal", 5, 7))
sketch5.addConstraint(Sketcher.Constraint("Equal", 10, 13))
sketch5.addConstraint(Sketcher.Constraint("Equal", 13, 15))
sketch5.addConstraint(Sketcher.Constraint("Equal", 15, 20))
sketch5.addConstraint(Sketcher.Constraint("Horizontal", 10, 1, 12, 2))
sketch5.addConstraint(Sketcher.Constraint("Diameter", 11, Q("13 mm")))
sketch5.addConstraint(Sketcher.Constraint("Diameter", 15, Q("4.5 mm")))
sketch5.addConstraint(Sketcher.Constraint("DistanceX", 0, 1, 0, 2, Q("65.5 mm")))
sketch5.addConstraint(Sketcher.Constraint("DistanceY", 2, 1, 2, 2, Q("45.5 mm")))
sketch5.addConstraint(Sketcher.Constraint("DistanceX", -1, 1, 8, 2, Q("3 mm")))
sketch5.addConstraint(Sketcher.Constraint("DistanceY", 8, 2, -1, 1, Q("50 mm")))
sketch5.addConstraint(Sketcher.Constraint("DistanceX", -1, 1, 12, 2, Q("67 mm")))
sketch5.addConstraint(Sketcher.Constraint("DistanceX", 16, 2, 16, 1, Q("6.12 mm")))
sketch5.addConstraint(Sketcher.Constraint("DistanceY", 17, 1, 17, 2, Q("9.37 mm")))
sketch5.addConstraint(Sketcher.Constraint("DistanceX", -1, 1, 11, 3, Q("17.28 mm")))
sketch5.addConstraint(Sketcher.Constraint("DistanceY", 11, 3, -1, 1, Q("30.89 mm")))
sketch5.addConstraint(Sketcher.Constraint("DistanceX", -1, 1, 16, 2, Q("40.17 mm")))
sketch5.addConstraint(Sketcher.Constraint("Radius", 1, Q("5.227988 mm")))
sketch5.addConstraint(Sketcher.Constraint("DistanceY", 16, 2, -1, 1, Q("17.685 mm")))
sketch5.setExpression("Constraints[41]", "Params.sketch5_diameter")
sketch5.setExpression("Constraints[42]", "Params.sketch5_diameter2")
sketch5.setExpression("Constraints[43]", "Params.sketch5_width")
sketch5.setExpression("Constraints[44]", "Params.sketch5_height")
sketch5.setExpression("Constraints[48]", "Params.sketch5_width2")
pad4 = body.newObject("PartDesign::Pad", "Pad003")
pad4.Profile = sketch5
pad4.Type = "TwoLengths"
pad4.setExpression("Length", "Params.pad4_length")
pad4.setExpression("Length2", "Params.pad4_length2")

# Sketch on XY plane
sketch6 = body.newObject("Sketcher::SketchObject", "Sketch005")
sketch6.AttachmentSupport = (doc.getObject("XY_Plane"), [""])
sketch6.MapMode = "FlatFace"
sketch6.AttachmentOffset = App.Placement(Vector(0, 0, 19), App.Rotation())
sketch6.addGeometry(Part.LineSegment(Vector(3, -38, 0), Vector(3, -52.977988, 0)), False)
sketch6.addGeometry(Part.LineSegment(Vector(3, -52.977988, 0), Vector(67, -52.977988, 0)), False)
sketch6.addGeometry(Part.LineSegment(Vector(67, -52.977988, 0), Vector(67, -38, 0)), False)
sketch6.addGeometry(Part.LineSegment(Vector(67, -38, 0), Vector(3, -38, 0)), False)
sketch6.addConstraint(Sketcher.Constraint("Coincident", 0, 2, 1, 1))
sketch6.addConstraint(Sketcher.Constraint("Coincident", 1, 2, 2, 1))
sketch6.addConstraint(Sketcher.Constraint("Coincident", 2, 2, 3, 1))
sketch6.addConstraint(Sketcher.Constraint("Coincident", 3, 2, 0, 1))
sketch6.addConstraint(Sketcher.Constraint("Vertical", 0))
sketch6.addConstraint(Sketcher.Constraint("Horizontal", 1))
sketch6.addConstraint(Sketcher.Constraint("Vertical", 2))
sketch6.addConstraint(Sketcher.Constraint("Horizontal", 3))
sketch6.addConstraint(Sketcher.Constraint("DistanceX", 1, 1, 1, 2, Q("64 mm")))
sketch6.addConstraint(Sketcher.Constraint("DistanceX", -1, 1, 0, 2, Q("3 mm")))
sketch6.addConstraint(Sketcher.Constraint("DistanceY", 2, 2, -1, 1, Q("38 mm")))
sketch6.addConstraint(Sketcher.Constraint("DistanceY", 0, 2, 0, 1, Q("14.977988 mm")))
sketch6.setExpression("Constraints[8]", "Params.sketch6_width")
pocket2 = body.newObject("PartDesign::Pocket", "Pocket001")
pocket2.Profile = sketch6
pocket2.setExpression("Length", "Params.pocket2_length")

# Sketch on XY plane
sketch7 = body.newObject("Sketcher::SketchObject", "Sketch006")
sketch7.AttachmentSupport = (doc.getObject("XY_Plane"), [""])
sketch7.MapMode = "FlatFace"
sketch7.AttachmentOffset = App.Placement(Vector(0, 0, 19), App.Rotation())
sketch7.addGeometry(Part.LineSegment(Vector(3, -38, 0), Vector(3, -52.977988, 0)), False)
sketch7.addGeometry(Part.LineSegment(Vector(3, -52.977988, 0), Vector(67, -52.977988, 0)), False)
sketch7.addGeometry(Part.LineSegment(Vector(67, -52.977988, 0), Vector(67, -38, 0)), False)
sketch7.addGeometry(Part.LineSegment(Vector(67, -38, 0), Vector(3, -38, 0)), False)
sketch7.addConstraint(Sketcher.Constraint("Coincident", 0, 2, 1, 1))
sketch7.addConstraint(Sketcher.Constraint("Coincident", 1, 2, 2, 1))
sketch7.addConstraint(Sketcher.Constraint("Coincident", 2, 2, 3, 1))
sketch7.addConstraint(Sketcher.Constraint("Coincident", 3, 2, 0, 1))
sketch7.addConstraint(Sketcher.Constraint("Vertical", 0))
sketch7.addConstraint(Sketcher.Constraint("Horizontal", 1))
sketch7.addConstraint(Sketcher.Constraint("Vertical", 2))
sketch7.addConstraint(Sketcher.Constraint("Horizontal", 3))
sketch7.addConstraint(Sketcher.Constraint("DistanceX", 1, 1, 1, 2, Q("64 mm")))
sketch7.addConstraint(Sketcher.Constraint("DistanceX", -1, 1, 0, 2, Q("3 mm")))
sketch7.addConstraint(Sketcher.Constraint("DistanceY", 2, 2, -1, 1, Q("38 mm")))
sketch7.addConstraint(Sketcher.Constraint("DistanceY", 0, 2, 0, 1, Q("14.977988 mm")))
sketch7.setExpression("Constraints[8]", "Params.sketch7_width")
pocket3 = body.newObject("PartDesign::Pocket", "Pocket002")
pocket3.Profile = sketch7
pocket3.Type = "UpToFirst"
pocket3.Reversed = True

# Sketch on XZ plane
sketch8 = body.newObject("Sketcher::SketchObject", "Sketch007")
sketch8.AttachmentSupport = (doc.getObject("XZ_Plane"), [""])
sketch8.MapMode = "FlatFace"
sketch8.addGeometry(Part.LineSegment(Vector(42.95, 19, 0), Vector(42.95, 0, 0)), False)
sketch8.addGeometry(Part.LineSegment(Vector(42.95, 0, 0), Vector(65.64, 0, 0)), False)
sketch8.addGeometry(Part.LineSegment(Vector(65.64, 0, 0), Vector(65.64, 19, 0)), False)
sketch8.addGeometry(Part.LineSegment(Vector(65.64, 19, 0), Vector(42.95, 19, 0)), False)
sketch8.addConstraint(Sketcher.Constraint("Coincident", 0, 2, 1, 1))
sketch8.addConstraint(Sketcher.Constraint("Coincident", 1, 2, 2, 1))
sketch8.addConstraint(Sketcher.Constraint("Coincident", 2, 2, 3, 1))
sketch8.addConstraint(Sketcher.Constraint("Coincident", 3, 2, 0, 1))
sketch8.addConstraint(Sketcher.Constraint("Vertical", 0))
sketch8.addConstraint(Sketcher.Constraint("Horizontal", 1))
sketch8.addConstraint(Sketcher.Constraint("Vertical", 2))
sketch8.addConstraint(Sketcher.Constraint("Horizontal", 3))
sketch8.addConstraint(Sketcher.Constraint("PointOnObject", 0, 2, -1))
sketch8.addConstraint(Sketcher.Constraint("DistanceY", 0, 2, 0, 1, Q("19 mm")))
sketch8.addConstraint(Sketcher.Constraint("DistanceX", 1, 1, 1, 2, Q("22.69 mm")))
sketch8.addConstraint(Sketcher.Constraint("DistanceX", -1, 1, 0, 2, Q("42.95 mm")))
sketch8.setExpression("Constraints[9]", "Params.sketch8_height")
sketch8.setExpression("Constraints[10]", "Params.sketch8_width")
pocket4 = body.newObject("PartDesign::Pocket", "Pocket003")
pocket4.Profile = sketch8
pocket4.Type = "UpToFirst"

# Sketch on XZ plane
sketch9 = body.newObject("Sketcher::SketchObject", "Sketch008")
sketch9.AttachmentSupport = (doc.getObject("XZ_Plane"), [""])
sketch9.MapMode = "FlatFace"
sketch9.addGeometry(Part.LineSegment(Vector(42.95, 19, 0), Vector(42.95, 0, 0)), False)
sketch9.addGeometry(Part.LineSegment(Vector(42.95, 0, 0), Vector(65.64, 0, 0)), False)
sketch9.addGeometry(Part.LineSegment(Vector(65.64, 0, 0), Vector(65.64, 19, 0)), False)
sketch9.addGeometry(Part.LineSegment(Vector(65.64, 19, 0), Vector(42.95, 19, 0)), False)
sketch9.addConstraint(Sketcher.Constraint("Coincident", 0, 2, 1, 1))
sketch9.addConstraint(Sketcher.Constraint("Coincident", 1, 2, 2, 1))
sketch9.addConstraint(Sketcher.Constraint("Coincident", 2, 2, 3, 1))
sketch9.addConstraint(Sketcher.Constraint("Coincident", 3, 2, 0, 1))
sketch9.addConstraint(Sketcher.Constraint("Vertical", 0))
sketch9.addConstraint(Sketcher.Constraint("Horizontal", 1))
sketch9.addConstraint(Sketcher.Constraint("Vertical", 2))
sketch9.addConstraint(Sketcher.Constraint("Horizontal", 3))
sketch9.addConstraint(Sketcher.Constraint("PointOnObject", 0, 2, -1))
sketch9.addConstraint(Sketcher.Constraint("DistanceY", 0, 2, 0, 1, Q("19 mm")))
sketch9.addConstraint(Sketcher.Constraint("DistanceX", 1, 1, 1, 2, Q("22.69 mm")))
sketch9.addConstraint(Sketcher.Constraint("DistanceX", -1, 1, 0, 2, Q("42.95 mm")))
sketch9.setExpression("Constraints[9]", "Params.sketch9_height")
sketch9.setExpression("Constraints[10]", "Params.sketch9_width")
pocket5 = body.newObject("PartDesign::Pocket", "Pocket004")
pocket5.Profile = sketch9
pocket5.setExpression("Length", "Params.pocket5_length")
pocket5.Reversed = True

# Sketch on XY plane
sketch10 = body.newObject("Sketcher::SketchObject", "Sketch009")
sketch10.AttachmentSupport = (doc.getObject("XY_Plane"), [""])
sketch10.MapMode = "FlatFace"
sketch10.AttachmentOffset = App.Placement(Vector(0, 0, 17), App.Rotation())
sketch10.addGeometry(Part.LineSegment(Vector(9.916157, -8.72, 0), Vector(9.916157, -17.44, 0)), False)
sketch10.addGeometry(Part.LineSegment(Vector(9.916157, -17.44, 0), Vector(-2.977988, -17.44, 0)), False)
sketch10.addGeometry(Part.LineSegment(Vector(-2.977988, -17.44, 0), Vector(-2.977988, -8.72, 0)), False)
sketch10.addGeometry(Part.LineSegment(Vector(-2.977988, -8.72, 0), Vector(9.916157, -8.72, 0)), False)
sketch10.addConstraint(Sketcher.Constraint("Coincident", 0, 2, 1, 1))
sketch10.addConstraint(Sketcher.Constraint("Coincident", 1, 2, 2, 1))
sketch10.addConstraint(Sketcher.Constraint("Coincident", 2, 2, 3, 1))
sketch10.addConstraint(Sketcher.Constraint("Coincident", 3, 2, 0, 1))
sketch10.addConstraint(Sketcher.Constraint("Vertical", 0))
sketch10.addConstraint(Sketcher.Constraint("Horizontal", 1))
sketch10.addConstraint(Sketcher.Constraint("Vertical", 2))
sketch10.addConstraint(Sketcher.Constraint("Horizontal", 3))
sketch10.addConstraint(Sketcher.Constraint("DistanceY", 0, 2, 0, 1, Q("8.72 mm")))
sketch10.addConstraint(Sketcher.Constraint("DistanceY", 0, 2, -1, 1, Q("17.44 mm")))
sketch10.addConstraint(Sketcher.Constraint("DistanceX", 1, 2, 1, 1, Q("12.894145 mm")))
sketch10.addConstraint(Sketcher.Constraint("DistanceX", 1, 2, -1, 1, Q("2.977988 mm")))
sketch10.setExpression("Constraints[8]", "Params.sketch10_height")
pocket6 = body.newObject("PartDesign::Pocket", "Pocket005")
pocket6.Profile = sketch10
pocket6.Type = "UpToFirst"
pocket6.Reversed = True

doc.recompute()
